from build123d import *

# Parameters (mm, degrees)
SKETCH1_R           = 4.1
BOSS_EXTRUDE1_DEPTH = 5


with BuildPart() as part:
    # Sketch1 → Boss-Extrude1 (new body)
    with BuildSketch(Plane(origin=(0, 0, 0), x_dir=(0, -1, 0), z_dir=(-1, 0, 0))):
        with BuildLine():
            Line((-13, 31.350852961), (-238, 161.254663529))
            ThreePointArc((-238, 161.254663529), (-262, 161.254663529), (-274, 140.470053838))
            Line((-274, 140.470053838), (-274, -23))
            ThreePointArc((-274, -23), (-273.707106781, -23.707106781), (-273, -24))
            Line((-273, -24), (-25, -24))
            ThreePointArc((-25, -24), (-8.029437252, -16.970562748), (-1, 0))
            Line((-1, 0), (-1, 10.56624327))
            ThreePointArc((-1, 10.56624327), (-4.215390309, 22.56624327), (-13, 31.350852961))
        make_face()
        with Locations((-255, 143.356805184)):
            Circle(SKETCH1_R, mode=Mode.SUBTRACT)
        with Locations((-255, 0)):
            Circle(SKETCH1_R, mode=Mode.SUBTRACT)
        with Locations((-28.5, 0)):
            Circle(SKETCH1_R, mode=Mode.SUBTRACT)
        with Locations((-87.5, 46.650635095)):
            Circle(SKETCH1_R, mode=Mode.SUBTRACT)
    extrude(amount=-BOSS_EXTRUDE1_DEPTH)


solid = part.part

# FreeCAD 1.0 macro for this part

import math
import FreeCAD as App
import Part
import Sketcher
Q = App.Units.Quantity

doc = App.newDocument("Part")
body = doc.addObject("PartDesign::Body", "Body")

# Sketch on YZ plane
sketch1 = body.newObject("Sketcher::SketchObject", "Sketch")
sketch1.AttachmentSupport = (doc.getObject("YZ_Plane"), [""])
sketch1.MapMode = "FlatFace"
sketch1.addGeometry([
    Part.LineSegment(App.Vector(13, 31.350853, 0), App.Vector(238, 161.254664, 0)),  # 0
    Part.ArcOfCircle(Part.Circle(App.Vector(250, 140.470054, 0), App.Vector(0, 0, 1), 24), math.radians(0), math.radians(120)),  # 1
    Part.LineSegment(App.Vector(274, 140.470054, 0), App.Vector(274, -23, 0)),  # 2
    Part.ArcOfCircle(Part.Circle(App.Vector(273, -23, 0), App.Vector(0, 0, 1), 1), math.radians(-90), math.radians(0)),  # 3
    Part.LineSegment(App.Vector(273, -24, 0), App.Vector(25, -24, 0)),  # 4
    Part.ArcOfCircle(Part.Circle(App.Vector(25, 0, 0), App.Vector(0, 0, 1), 24), math.radians(-180), math.radians(-90)),  # 5
    Part.LineSegment(App.Vector(1, 0, 0), App.Vector(1, 10.566243, 0)),  # 6
    Part.ArcOfCircle(Part.Circle(App.Vector(25, 10.566243, 0), App.Vector(0, 0, 1), 24), math.radians(120), math.radians(180)),  # 7
    Part.Circle(App.Vector(255, 0, 0), App.Vector(0, 0, 1), 4.1),  # 8
    Part.Circle(App.Vector(28.5, 0, 0), App.Vector(0, 0, 1), 4.1),  # 9
    Part.Circle(App.Vector(87.5, 46.650635, 0), App.Vector(0, 0, 1), 4.1),  # 10
    Part.Circle(App.Vector(255, 143.356805, 0), App.Vector(0, 0, 1), 4.1),  # 11
], False)
sketch1.addConstraint([
    Sketcher.Constraint("Tangent", 0, 2, 1, 2),
    Sketcher.Constraint("Tangent", 1, 1, 2, 1),
    Sketcher.Constraint("Tangent", 2, 2, 3, 2),
    Sketcher.Constraint("Tangent", 3, 1, 4, 1),
    Sketcher.Constraint("Tangent", 4, 2, 5, 2),
    Sketcher.Constraint("Tangent", 5, 1, 6, 1),
    Sketcher.Constraint("Tangent", 6, 2, 7, 2),
    Sketcher.Constraint("Tangent", 7, 1, 0, 1),
    Sketcher.Constraint("Vertical", 2),
    Sketcher.Constraint("Horizontal", 4),
    Sketcher.Constraint("Vertical", 6),
    Sketcher.Constraint("Equal", 1, 5),
    Sketcher.Constraint("Equal", 5, 7),
    Sketcher.Constraint("Equal", 8, 9),
    Sketcher.Constraint("Equal", 9, 10),
    Sketcher.Constraint("Equal", 10, 11),
    Sketcher.Constraint("PointOnObject", 5, 3, -1),
    Sketcher.Constraint("PointOnObject", 8, 3, -1),
    Sketcher.Constraint("PointOnObject", 9, 3, -1),
    Sketcher.Constraint("Vertical", 8, 3, 11, 3),
    Sketcher.Constraint("Radius", 1, Q("24 mm")),
    Sketcher.Constraint("Radius", 3, Q("1 mm")),
    Sketcher.Constraint("Diameter", 8, Q("8.2 mm")),
    Sketcher.Constraint("DistanceX", 4, 2, 4, 1, Q("248 mm")),
    Sketcher.Constraint("Angle", 0, Q("30 deg")),
    Sketcher.Constraint("DistanceX", -1, 1, 1, 3, Q("250 mm")),
    Sketcher.Constraint("DistanceX", -1, 1, 8, 3, Q("255 mm")),
    Sketcher.Constraint("DistanceX", 9, 3, 10, 3, Q("59 mm")),
    Sketcher.Constraint("DistanceX", -1, 1, 9, 3, Q("28.5 mm")),
    Sketcher.Constraint("DistanceY", 2, 2, 2, 1, Q("163.470054 mm")),
    Sketcher.Constraint("DistanceY", 7, 3, 10, 3, Q("36.084392 mm")),
    Sketcher.Constraint("DistanceY", 1, 3, 11, 3, Q("2.886751 mm")),
])
pad1 = body.newObject("PartDesign::Pad", "Pad")
pad1.Profile = sketch1
pad1.Length = 5

doc.recompute()
